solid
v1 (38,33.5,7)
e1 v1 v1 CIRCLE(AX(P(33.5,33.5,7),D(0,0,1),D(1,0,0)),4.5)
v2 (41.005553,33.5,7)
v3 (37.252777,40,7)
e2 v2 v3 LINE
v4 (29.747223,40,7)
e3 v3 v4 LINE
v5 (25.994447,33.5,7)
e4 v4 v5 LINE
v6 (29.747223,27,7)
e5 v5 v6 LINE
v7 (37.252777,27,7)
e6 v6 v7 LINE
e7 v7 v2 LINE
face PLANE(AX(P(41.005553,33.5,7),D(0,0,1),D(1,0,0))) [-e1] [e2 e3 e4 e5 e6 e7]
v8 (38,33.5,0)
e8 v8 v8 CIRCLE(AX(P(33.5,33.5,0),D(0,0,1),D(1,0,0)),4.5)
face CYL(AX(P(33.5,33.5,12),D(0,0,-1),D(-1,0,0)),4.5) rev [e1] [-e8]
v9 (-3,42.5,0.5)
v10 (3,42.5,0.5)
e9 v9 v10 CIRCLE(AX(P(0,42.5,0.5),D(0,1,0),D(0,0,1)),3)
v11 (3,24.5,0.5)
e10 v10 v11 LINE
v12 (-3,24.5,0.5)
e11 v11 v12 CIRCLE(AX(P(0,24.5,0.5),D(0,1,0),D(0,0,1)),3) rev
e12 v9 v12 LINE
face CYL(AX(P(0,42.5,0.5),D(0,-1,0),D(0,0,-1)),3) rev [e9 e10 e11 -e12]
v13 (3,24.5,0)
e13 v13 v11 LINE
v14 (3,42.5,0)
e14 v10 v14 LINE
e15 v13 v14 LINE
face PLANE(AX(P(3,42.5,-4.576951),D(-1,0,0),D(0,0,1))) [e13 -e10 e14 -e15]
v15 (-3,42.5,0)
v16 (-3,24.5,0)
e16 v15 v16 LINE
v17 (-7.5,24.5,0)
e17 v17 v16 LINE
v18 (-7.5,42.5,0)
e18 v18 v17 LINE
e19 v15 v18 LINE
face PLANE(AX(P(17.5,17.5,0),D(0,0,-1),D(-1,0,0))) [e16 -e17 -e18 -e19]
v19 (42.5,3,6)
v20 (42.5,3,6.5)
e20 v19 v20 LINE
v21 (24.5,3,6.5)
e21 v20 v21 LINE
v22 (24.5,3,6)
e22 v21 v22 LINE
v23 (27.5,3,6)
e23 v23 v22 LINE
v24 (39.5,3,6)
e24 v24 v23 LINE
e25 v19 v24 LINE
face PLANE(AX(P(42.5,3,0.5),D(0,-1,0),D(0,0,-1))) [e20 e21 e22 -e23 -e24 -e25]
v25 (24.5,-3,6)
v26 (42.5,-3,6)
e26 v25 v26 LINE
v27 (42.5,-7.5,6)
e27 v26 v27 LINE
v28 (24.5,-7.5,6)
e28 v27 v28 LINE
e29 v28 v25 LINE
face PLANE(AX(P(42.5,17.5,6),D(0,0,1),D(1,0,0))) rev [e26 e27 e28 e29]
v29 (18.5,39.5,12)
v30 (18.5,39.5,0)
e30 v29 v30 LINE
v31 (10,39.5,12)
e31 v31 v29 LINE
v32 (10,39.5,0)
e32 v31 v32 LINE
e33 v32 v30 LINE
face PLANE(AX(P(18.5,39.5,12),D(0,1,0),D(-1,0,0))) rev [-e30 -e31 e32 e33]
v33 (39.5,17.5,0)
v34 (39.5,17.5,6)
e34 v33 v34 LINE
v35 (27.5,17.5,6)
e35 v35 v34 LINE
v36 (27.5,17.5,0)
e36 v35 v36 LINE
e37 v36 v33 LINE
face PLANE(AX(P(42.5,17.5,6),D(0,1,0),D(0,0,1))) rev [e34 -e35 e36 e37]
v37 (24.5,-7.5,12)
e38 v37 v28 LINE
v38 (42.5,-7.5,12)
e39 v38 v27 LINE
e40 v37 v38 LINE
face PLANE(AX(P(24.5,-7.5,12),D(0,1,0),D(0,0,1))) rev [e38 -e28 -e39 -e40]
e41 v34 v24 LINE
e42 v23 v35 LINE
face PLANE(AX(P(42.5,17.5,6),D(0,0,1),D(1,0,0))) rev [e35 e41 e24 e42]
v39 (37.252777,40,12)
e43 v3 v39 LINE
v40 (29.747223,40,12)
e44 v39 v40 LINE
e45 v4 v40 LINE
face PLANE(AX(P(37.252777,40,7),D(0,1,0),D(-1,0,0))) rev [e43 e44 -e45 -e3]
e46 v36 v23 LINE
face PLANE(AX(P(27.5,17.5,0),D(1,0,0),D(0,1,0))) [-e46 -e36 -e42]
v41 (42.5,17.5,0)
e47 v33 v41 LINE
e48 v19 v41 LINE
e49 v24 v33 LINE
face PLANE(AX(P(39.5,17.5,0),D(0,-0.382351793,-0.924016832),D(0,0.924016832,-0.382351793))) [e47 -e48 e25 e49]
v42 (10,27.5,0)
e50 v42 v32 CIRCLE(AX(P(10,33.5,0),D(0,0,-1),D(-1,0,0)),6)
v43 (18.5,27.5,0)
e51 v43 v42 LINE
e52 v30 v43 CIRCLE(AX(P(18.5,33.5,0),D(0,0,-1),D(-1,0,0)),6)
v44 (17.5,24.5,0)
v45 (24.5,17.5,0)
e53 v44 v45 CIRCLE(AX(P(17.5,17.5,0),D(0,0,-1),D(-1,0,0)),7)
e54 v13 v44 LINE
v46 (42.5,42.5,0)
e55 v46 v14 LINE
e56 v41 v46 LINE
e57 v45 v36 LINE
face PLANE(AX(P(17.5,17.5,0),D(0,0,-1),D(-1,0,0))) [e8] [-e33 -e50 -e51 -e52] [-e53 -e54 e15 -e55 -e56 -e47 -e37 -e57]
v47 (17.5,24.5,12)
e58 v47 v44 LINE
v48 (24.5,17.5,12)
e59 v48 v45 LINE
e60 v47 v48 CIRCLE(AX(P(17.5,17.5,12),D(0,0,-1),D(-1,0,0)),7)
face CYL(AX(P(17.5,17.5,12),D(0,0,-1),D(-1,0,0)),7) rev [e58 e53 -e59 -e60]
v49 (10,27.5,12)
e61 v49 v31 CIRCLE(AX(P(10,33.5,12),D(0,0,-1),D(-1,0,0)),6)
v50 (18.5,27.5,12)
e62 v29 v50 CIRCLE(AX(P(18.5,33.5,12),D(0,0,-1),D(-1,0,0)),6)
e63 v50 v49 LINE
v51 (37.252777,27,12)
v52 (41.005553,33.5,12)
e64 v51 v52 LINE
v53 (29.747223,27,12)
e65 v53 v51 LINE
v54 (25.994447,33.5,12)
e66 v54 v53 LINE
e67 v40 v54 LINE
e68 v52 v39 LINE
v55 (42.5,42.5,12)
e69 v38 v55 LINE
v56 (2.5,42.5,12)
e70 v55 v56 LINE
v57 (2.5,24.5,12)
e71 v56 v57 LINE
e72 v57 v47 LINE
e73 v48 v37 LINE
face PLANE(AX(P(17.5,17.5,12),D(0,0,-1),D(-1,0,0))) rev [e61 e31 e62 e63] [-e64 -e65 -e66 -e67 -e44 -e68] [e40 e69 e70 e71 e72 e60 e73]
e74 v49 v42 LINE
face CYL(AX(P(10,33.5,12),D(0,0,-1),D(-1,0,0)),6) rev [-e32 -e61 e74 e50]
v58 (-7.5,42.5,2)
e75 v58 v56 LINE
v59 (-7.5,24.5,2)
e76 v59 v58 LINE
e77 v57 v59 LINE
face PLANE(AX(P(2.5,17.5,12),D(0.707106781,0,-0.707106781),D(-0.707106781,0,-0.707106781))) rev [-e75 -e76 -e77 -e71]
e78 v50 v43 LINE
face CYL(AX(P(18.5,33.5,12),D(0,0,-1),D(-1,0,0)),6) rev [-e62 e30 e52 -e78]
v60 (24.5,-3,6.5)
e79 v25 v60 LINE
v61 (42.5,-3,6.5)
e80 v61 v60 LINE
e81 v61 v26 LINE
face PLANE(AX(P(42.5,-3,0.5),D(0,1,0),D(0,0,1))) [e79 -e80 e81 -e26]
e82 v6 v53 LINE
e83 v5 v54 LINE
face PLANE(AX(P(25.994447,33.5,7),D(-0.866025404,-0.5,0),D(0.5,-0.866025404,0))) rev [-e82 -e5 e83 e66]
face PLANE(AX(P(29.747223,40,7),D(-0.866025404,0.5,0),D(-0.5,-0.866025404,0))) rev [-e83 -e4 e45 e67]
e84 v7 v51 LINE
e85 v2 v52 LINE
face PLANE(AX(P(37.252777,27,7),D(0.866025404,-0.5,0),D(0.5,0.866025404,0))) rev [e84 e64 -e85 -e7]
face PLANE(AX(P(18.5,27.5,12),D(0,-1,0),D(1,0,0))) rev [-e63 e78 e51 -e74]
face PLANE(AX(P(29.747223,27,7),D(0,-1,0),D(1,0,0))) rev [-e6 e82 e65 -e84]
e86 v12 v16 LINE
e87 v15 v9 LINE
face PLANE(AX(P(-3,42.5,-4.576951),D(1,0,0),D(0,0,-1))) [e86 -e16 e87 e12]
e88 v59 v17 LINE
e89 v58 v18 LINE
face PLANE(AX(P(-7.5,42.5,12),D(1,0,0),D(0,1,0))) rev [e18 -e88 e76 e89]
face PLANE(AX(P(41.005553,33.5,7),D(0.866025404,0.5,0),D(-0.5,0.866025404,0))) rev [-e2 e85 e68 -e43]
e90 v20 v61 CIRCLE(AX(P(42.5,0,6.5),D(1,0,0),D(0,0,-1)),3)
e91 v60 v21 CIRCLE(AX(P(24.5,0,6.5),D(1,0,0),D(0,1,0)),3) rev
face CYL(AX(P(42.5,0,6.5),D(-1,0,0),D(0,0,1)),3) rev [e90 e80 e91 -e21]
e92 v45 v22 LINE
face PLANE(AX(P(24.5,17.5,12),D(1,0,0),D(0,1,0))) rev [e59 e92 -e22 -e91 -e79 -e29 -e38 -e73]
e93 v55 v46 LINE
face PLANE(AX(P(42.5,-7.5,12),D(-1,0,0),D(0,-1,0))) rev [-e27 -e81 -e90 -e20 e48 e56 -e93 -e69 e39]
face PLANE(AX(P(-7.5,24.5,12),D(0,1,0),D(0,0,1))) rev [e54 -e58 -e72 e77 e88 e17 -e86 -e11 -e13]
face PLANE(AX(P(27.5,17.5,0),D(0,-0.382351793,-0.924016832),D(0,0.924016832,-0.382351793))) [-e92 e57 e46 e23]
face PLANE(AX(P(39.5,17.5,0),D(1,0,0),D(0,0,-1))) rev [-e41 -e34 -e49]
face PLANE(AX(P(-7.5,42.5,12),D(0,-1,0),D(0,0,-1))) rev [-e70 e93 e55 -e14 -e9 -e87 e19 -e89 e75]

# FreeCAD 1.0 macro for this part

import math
import FreeCAD as App
import Part
import Sketcher
Q = App.Units.Quantity


def edges_at(feature, points):
    """Names of the edges that pass closest to the given points."""
    edges = feature.Shape.Edges
    near = lambda p: min(range(len(edges)), key=lambda i: edges[i].distToShape(Part.Vertex(*p))[0])
    return sorted({f"Edge{near(p) + 1}" for p in points})

doc = App.newDocument("Part")
body = doc.addObject("PartDesign::Body", "Body")

# Sketch on XY plane
sketch1 = body.newObject("Sketcher::SketchObject", "Sketch")
sketch1.AttachmentSupport = (doc.getObject("XY_Plane"), [""])
sketch1.MapMode = "FlatFace"
sketch1.addGeometry(Part.LineSegment(App.Vector(-7.5, 42.5, 0), App.Vector(-7.5, 24.5, 0)), False)
sketch1.addGeometry(Part.LineSegment(App.Vector(-7.5, 24.5, 0), App.Vector(17.5, 24.5, 0)), False)
sketch1.addGeometry(Part.ArcOfCircle(Part.Circle(App.Vector(17.5, 17.5, 0), App.Vector(0, 0, 1), 7), math.radians(0), math.radians(90)), False)
sketch1.addGeometry(Part.LineSegment(App.Vector(24.5, 17.5, 0), App.Vector(24.5, -7.5, 0)), False)
sketch1.addGeometry(Part.LineSegment(App.Vector(24.5, -7.5, 0), App.Vector(42.5, -7.5, 0)), False)
sketch1.addGeometry(Part.LineSegment(App.Vector(42.5, -7.5, 0), App.Vector(42.5, 42.5, 0)), False)
sketch1.addGeometry(Part.LineSegment(App.Vector(42.5, 42.5, 0), App.Vector(-7.5, 42.5, 0)), False)
sketch1.addGeometry(Part.Circle(App.Vector(33.5, 33.5, 0), App.Vector(0, 0, 1), 4.5), False)
sketch1.addConstraint(Sketcher.Constraint("Coincident", 0, 2, 1, 1))
sketch1.addConstraint(Sketcher.Constraint("Tangent", 1, 2, 2, 2))
sketch1.addConstraint(Sketcher.Constraint("Tangent", 2, 1, 3, 1))
sketch1.addConstraint(Sketcher.Constraint("Coincident", 3, 2, 4, 1))
sketch1.addConstraint(Sketcher.Constraint("Coincident", 4, 2, 5, 1))
sketch1.addConstraint(Sketcher.Constraint("Coincident", 5, 2, 6, 1))
sketch1.addConstraint(Sketcher.Constraint("Coincident", 6, 2, 0, 1))
sketch1.addConstraint(Sketcher.Constraint("Vertical", 0))
sketch1.addConstraint(Sketcher.Constraint("Horizontal", 1))
sketch1.addConstraint(Sketcher.Constraint("Vertical", 3))
sketch1.addConstraint(Sketcher.Constraint("Horizontal", 4))
sketch1.addConstraint(Sketcher.Constraint("Vertical", 5))
sketch1.addConstraint(Sketcher.Constraint("Horizontal", 6))
sketch1.addConstraint(Sketcher.Constraint("Equal", 4, 0))
sketch1.addConstraint(Sketcher.Constraint("Equal", 1, 3))
sketch1.addConstraint(Sketcher.Constraint("Diameter", 7, Q("9 mm")))
sketch1.addConstraint(Sketcher.Constraint("Radius", 2, Q("7 mm")))
sketch1.addConstraint(Sketcher.Constraint("DistanceX", 1, 1, 1, 2, Q("25 mm")))
sketch1.addConstraint(Sketcher.Constraint("DistanceX", 4, 1, 4, 2, Q("18 mm")))
sketch1.addConstraint(Sketcher.Constraint("DistanceX", 2, 3, 7, 3, Q("16 mm")))
sketch1.addConstraint(Sketcher.Constraint("DistanceY", 2, 3, 7, 3, Q("16 mm")))
sketch1.addConstraint(Sketcher.Constraint("DistanceX", -1, 1, 2, 3, Q("17.5 mm")))
sketch1.addConstraint(Sketcher.Constraint("DistanceY", -1, 1, 2, 3, Q("17.5 mm")))
pad1 = body.newObject("PartDesign::Pad", "Pad")
pad1.Profile = sketch1
pad1.Length = 12

# Sketch on XY plane
sketch2 = body.newObject("Sketcher::SketchObject", "Sketch001")
sketch2.AttachmentSupport = (doc.getObject("XY_Plane"), [""])
sketch2.MapMode = "FlatFace"
sketch2.AttachmentOffset = App.Placement(App.Vector(0, 0, 12), App.Rotation())
sketch2.addGeometry(Part.LineSegment(App.Vector(41, 34, 0), App.Vector(37, 40, 0)), False)
sketch2.addGeometry(Part.LineSegment(App.Vector(37, 40, 0), App.Vector(30, 40, 0)), False)
sketch2.addGeometry(Part.LineSegment(App.Vector(30, 40, 0), App.Vector(26, 34, 0)), False)
sketch2.addGeometry(Part.LineSegment(App.Vector(26, 34, 0), App.Vector(30, 27, 0)), False)
sketch2.addGeometry(Part.LineSegment(App.Vector(30, 27, 0), App.Vector(37, 27, 0)), False)
sketch2.addGeometry(Part.LineSegment(App.Vector(37, 27, 0), App.Vector(41, 34, 0)), False)
sketch2.addConstraint(Sketcher.Constraint("Coincident", 0, 2, 1, 1))
sketch2.addConstraint(Sketcher.Constraint("Coincident", 1, 2, 2, 1))
sketch2.addConstraint(Sketcher.Constraint("Coincident", 2, 2, 3, 1))
sketch2.addConstraint(Sketcher.Constraint("Coincident", 3, 2, 4, 1))
sketch2.addConstraint(Sketcher.Constraint("Coincident", 4, 2, 5, 1))
sketch2.addConstraint(Sketcher.Constraint("Coincident", 5, 2, 0, 1))
sketch2.addConstraint(Sketcher.Constraint("Horizontal", 1))
sketch2.addConstraint(Sketcher.Constraint("Horizontal", 4))
sketch2.addConstraint(Sketcher.Constraint("Parallel", 0, 3))
sketch2.addConstraint(Sketcher.Constraint("Parallel", 2, 5))
sketch2.addConstraint(Sketcher.Constraint("Horizontal", 2, 2, 5, 2))
sketch2.addConstraint(Sketcher.Constraint("Vertical", 1, 2, 3, 2))
sketch2.addConstraint(Sketcher.Constraint("Vertical", 0, 2, 4, 2))
sketch2.addConstraint(Sketcher.Constraint("Angle", 0, Q("120 deg")))
sketch2.addConstraint(Sketcher.Constraint("DistanceY", -1, 1, 0, 2, Q("40 mm")))
sketch2.addConstraint(Sketcher.Constraint("DistanceY", -1, 1, 3, 2, Q("27 mm")))
sketch2.addConstraint(Sketcher.Constraint("DistanceX", 1, 2, 1, 1, Q("7.505554 mm")))
sketch2.addConstraint(Sketcher.Constraint("DistanceX", -1, 1, 0, 2, Q("37.252777 mm")))
pocket1 = body.newObject("PartDesign::Pocket", "Pocket")
pocket1.Profile = sketch2
pocket1.Length = 5

# Sketch on XZ plane
sketch3 = body.newObject("Sketcher::SketchObject", "Sketch002")
sketch3.AttachmentSupport = (doc.getObject("XZ_Plane"), [""])
sketch3.MapMode = "FlatFace"
sketch3.addGeometry(Part.LineSegment(App.Vector(3, 0.5, 0), App.Vector(3, -4.6, 0)), False)
sketch3.addGeometry(Part.ArcOfCircle(Part.Circle(App.Vector(0, -4.6, 0), App.Vector(0, 0, 1), 3), math.radians(180), math.radians(360)), False)
sketch3.addGeometry(Part.LineSegment(App.Vector(-3, -4.6, 0), App.Vector(-3, 0.5, 0)), False)
sketch3.addGeometry(Part.ArcOfCircle(Part.Circle(App.Vector(0, 0.5, 0), App.Vector(0, 0, 1), 3), math.radians(0), math.radians(180)), False)
sketch3.addConstraint(Sketcher.Constraint("Tangent", 0, 2, 1, 2))
sketch3.addConstraint(Sketcher.Constraint("Tangent", 1, 1, 2, 1))
sketch3.addConstraint(Sketcher.Constraint("Tangent", 2, 2, 3, 2))
sketch3.addConstraint(Sketcher.Constraint("Tangent", 3, 1, 0, 1))
sketch3.addConstraint(Sketcher.Constraint("Vertical", 0))
sketch3.addConstraint(Sketcher.Constraint("Vertical", 2))
sketch3.addConstraint(Sketcher.Constraint("PointOnObject", 1, 3, -2))
sketch3.addConstraint(Sketcher.Constraint("Radius", 1, Q("3 mm")))
sketch3.addConstraint(Sketcher.Constraint("DistanceY", -1, 1, 3, 3, Q("0.5 mm")))
sketch3.addConstraint(Sketcher.Constraint("DistanceY", 0, 2, 0, 1, Q("5.076951 mm")))
pocket2 = body.newObject("PartDesign::Pocket", "Pocket001")
pocket2.Profile = sketch3
pocket2.Type = "ThroughAll"

# Sketch on YZ plane
sketch4 = body.newObject("Sketcher::SketchObject", "Sketch003")
sketch4.AttachmentSupport = (doc.getObject("YZ_Plane"), [""])
sketch4.MapMode = "FlatFace"
sketch4.addGeometry(Part.LineSegment(App.Vector(-3, 6.5, 0), App.Vector(-3, 0.5, 0)), False)
sketch4.addGeometry(Part.ArcOfCircle(Part.Circle(App.Vector(0, 0.5, 0), App.Vector(0, 0, 1), 3), math.radians(180), math.radians(360)), False)
sketch4.addGeometry(Part.LineSegment(App.Vector(3, 0.5, 0), App.Vector(3, 6.5, 0)), False)
sketch4.addGeometry(Part.ArcOfCircle(Part.Circle(App.Vector(0, 6.5, 0), App.Vector(0, 0, 1), 3), math.radians(0), math.radians(180)), False)
sketch4.addConstraint(Sketcher.Constraint("Tangent", 0, 2, 1, 1))
sketch4.addConstraint(Sketcher.Constraint("Tangent", 1, 2, 2, 1))
sketch4.addConstraint(Sketcher.Constraint("Tangent", 2, 2, 3, 1))
sketch4.addConstraint(Sketcher.Constraint("Tangent", 3, 2, 0, 1))
sketch4.addConstraint(Sketcher.Constraint("Vertical", 0))
sketch4.addConstraint(Sketcher.Constraint("Vertical", 2))
sketch4.addConstraint(Sketcher.Constraint("PointOnObject", 1, 3, -2))
sketch4.addConstraint(Sketcher.Constraint("Radius", 1, Q("3 mm")))
sketch4.addConstraint(Sketcher.Constraint("DistanceY", 0, 2, 0, 1, Q("6 mm")))
sketch4.addConstraint(Sketcher.Constraint("DistanceY", -1, 1, 1, 3, Q("0.5 mm")))
pocket3 = body.newObject("PartDesign::Pocket", "Pocket002")
pocket3.Profile = sketch4
pocket3.Type = "ThroughAll"
pocket3.Reversed = True

# Sketch on XY plane
sketch5 = body.newObject("Sketcher::SketchObject", "Sketch004")
sketch5.AttachmentSupport = (doc.getObject("XY_Plane"), [""])
sketch5.MapMode = "FlatFace"
sketch5.addGeometry(Part.LineSegment(App.Vector(42, 18, 0), App.Vector(42, -8, 0)), False)
sketch5.addGeometry(Part.LineSegment(App.Vector(42, -8, 0), App.Vector(24, -8, 0)), False)
sketch5.addGeometry(Part.LineSegment(App.Vector(24, -8, 0), App.Vector(24, 18, 0)), False)
sketch5.addGeometry(Part.LineSegment(App.Vector(24, 18, 0), App.Vector(42, 18, 0)), False)
sketch5.addConstraint(Sketcher.Constraint("Coincident", 0, 2, 1, 1))
sketch5.addConstraint(Sketcher.Constraint("Coincident", 1, 2, 2, 1))
sketch5.addConstraint(Sketcher.Constraint("Coincident", 2, 2, 3, 1))
sketch5.addConstraint(Sketcher.Constraint("Coincident", 3, 2, 0, 1))
sketch5.addConstraint(Sketcher.Constraint("Vertical", 0))
sketch5.addConstraint(Sketcher.Constraint("Horizontal", 1))
sketch5.addConstraint(Sketcher.Constraint("Vertical", 2))
sketch5.addConstraint(Sketcher.Constraint("Horizontal", 3))
sketch5.addConstraint(Sketcher.Constraint("DistanceX", 1, 2, 1, 1, Q("18 mm")))
sketch5.addConstraint(Sketcher.Constraint("DistanceY", 0, 2, 0, 1, Q("25 mm")))
sketch5.addConstraint(Sketcher.Constraint("DistanceX", -1, 1, 0, 2, Q("42.5 mm")))
sketch5.addConstraint(Sketcher.Constraint("DistanceY", 0, 2, -1, 1, Q("7.5 mm")))
pocket4 = body.newObject("PartDesign::Pocket", "Pocket003")
pocket4.Profile = sketch5
pocket4.Length = 6
pocket4.Reversed = True

# Sketch on YZ plane
sketch6 = body.newObject("Sketcher::SketchObject", "Sketch005")
sketch6.AttachmentSupport = (doc.getObject("YZ_Plane"), [""])
sketch6.MapMode = "FlatFace"
sketch6.AttachmentOffset = App.Placement(App.Vector(0, 0, 42.5), App.Rotation())
sketch6.addGeometry(Part.LineSegment(App.Vector(18, 6, 0), App.Vector(3, 6, 0)), False)
sketch6.addGeometry(Part.LineSegment(App.Vector(3, 6, 0), App.Vector(18, 0, 0)), False)
sketch6.addGeometry(Part.LineSegment(App.Vector(18, 0, 0), App.Vector(18, 6, 0)), False)
sketch6.addConstraint(Sketcher.Constraint("Coincident", 0, 2, 1, 1))
sketch6.addConstraint(Sketcher.Constraint("Coincident", 1, 2, 2, 1))
sketch6.addConstraint(Sketcher.Constraint("Coincident", 2, 2, 0, 1))
sketch6.addConstraint(Sketcher.Constraint("Horizontal", 0))
sketch6.addConstraint(Sketcher.Constraint("Vertical", 2))
sketch6.addConstraint(Sketcher.Constraint("PointOnObject", 1, 2, -1))
sketch6.addConstraint(Sketcher.Constraint("DistanceY", 2, 1, 2, 2, Q("6 mm")))
sketch6.addConstraint(Sketcher.Constraint("DistanceX", 0, 2, 0, 1, Q("14.5 mm")))
sketch6.addConstraint(Sketcher.Constraint("DistanceX", -1, 1, 0, 2, Q("3 mm")))
pad2 = body.newObject("PartDesign::Pad", "Pad001")
pad2.Profile = sketch6
pad2.Length = 3
pad2.Reversed = True

# Sketch on YZ plane
sketch7 = body.newObject("Sketcher::SketchObject", "Sketch006")
sketch7.AttachmentSupport = (doc.getObject("YZ_Plane"), [""])
sketch7.MapMode = "FlatFace"
sketch7.AttachmentOffset = App.Placement(App.Vector(0, 0, 24.5), App.Rotation())
sketch7.addGeometry(Part.LineSegment(App.Vector(3, 6, 0), App.Vector(18, 6, 0)), False)
sketch7.addGeometry(Part.LineSegment(App.Vector(18, 6, 0), App.Vector(18, 0, 0)), False)
sketch7.addGeometry(Part.LineSegment(App.Vector(18, 0, 0), App.Vector(3, 6, 0)), False)
sketch7.addConstraint(Sketcher.Constraint("Coincident", 0, 2, 1, 1))
sketch7.addConstraint(Sketcher.Constraint("Coincident", 1, 2, 2, 1))
sketch7.addConstraint(Sketcher.Constraint("Coincident", 2, 2, 0, 1))
sketch7.addConstraint(Sketcher.Constraint("Horizontal", 0))
sketch7.addConstraint(Sketcher.Constraint("Vertical", 1))
sketch7.addConstraint(Sketcher.Constraint("PointOnObject", 1, 2, -1))
sketch7.addConstraint(Sketcher.Constraint("DistanceY", 1, 2, 1, 1, Q("6 mm")))
sketch7.addConstraint(Sketcher.Constraint("DistanceX", 0, 1, 0, 2, Q("14.5 mm")))
sketch7.addConstraint(Sketcher.Constraint("DistanceX", -1, 1, 2, 2, Q("3 mm")))
pad3 = body.newObject("PartDesign::Pad", "Pad002")
pad3.Profile = sketch7
pad3.Length = 3

# Sketch on XY plane
sketch8 = body.newObject("Sketcher::SketchObject", "Sketch007")
sketch8.AttachmentSupport = (doc.getObject("XY_Plane"), [""])
sketch8.MapMode = "FlatFace"
sketch8.addGeometry(Part.LineSegment(App.Vector(10, 40, 0), App.Vector(18, 40, 0)), False)
sketch8.addGeometry(Part.ArcOfCircle(Part.Circle(App.Vector(18, 34, 0), App.Vector(0, 0, 1), 6), math.radians(-90), math.radians(90)), False)
sketch8.addGeometry(Part.LineSegment(App.Vector(18, 28, 0), App.Vector(10, 28, 0)), False)
sketch8.addGeometry(Part.ArcOfCircle(Part.Circle(App.Vector(10, 34, 0), App.Vector(0, 0, 1), 6), math.radians(90), math.radians(270)), False)
sketch8.addConstraint(Sketcher.Constraint("Tangent", 0, 2, 1, 2))
sketch8.addConstraint(Sketcher.Constraint("Tangent", 1, 1, 2, 1))
sketch8.addConstraint(Sketcher.Constraint("Tangent", 2, 2, 3, 2))
sketch8.addConstraint(Sketcher.Constraint("Tangent", 3, 1, 0, 1))
sketch8.addConstraint(Sketcher.Constraint("Horizontal", 0))
sketch8.addConstraint(Sketcher.Constraint("Horizontal", 2))
sketch8.addConstraint(Sketcher.Constraint("Radius", 1, Q("6 mm")))
sketch8.addConstraint(Sketcher.Constraint("DistanceX", 0, 1, 0, 2, Q("8.5 mm")))
sketch8.addConstraint(Sketcher.Constraint("DistanceX", -1, 1, 3, 3, Q("10 mm")))
sketch8.addConstraint(Sketcher.Constraint("DistanceY", -1, 1, 1, 3, Q("33.5 mm")))
pocket5 = body.newObject("PartDesign::Pocket", "Pocket004")
pocket5.Profile = sketch8
pocket5.Type = "ThroughAll"
pocket5.Reversed = True
doc.recompute()

chamfer = body.newObject("PartDesign::Chamfer", "Chamfer")
chamfer.Base = (pocket5, edges_at(pocket5, [(-7.5, 33.5, 12)]))
chamfer.Size = 10

doc.recompute()
